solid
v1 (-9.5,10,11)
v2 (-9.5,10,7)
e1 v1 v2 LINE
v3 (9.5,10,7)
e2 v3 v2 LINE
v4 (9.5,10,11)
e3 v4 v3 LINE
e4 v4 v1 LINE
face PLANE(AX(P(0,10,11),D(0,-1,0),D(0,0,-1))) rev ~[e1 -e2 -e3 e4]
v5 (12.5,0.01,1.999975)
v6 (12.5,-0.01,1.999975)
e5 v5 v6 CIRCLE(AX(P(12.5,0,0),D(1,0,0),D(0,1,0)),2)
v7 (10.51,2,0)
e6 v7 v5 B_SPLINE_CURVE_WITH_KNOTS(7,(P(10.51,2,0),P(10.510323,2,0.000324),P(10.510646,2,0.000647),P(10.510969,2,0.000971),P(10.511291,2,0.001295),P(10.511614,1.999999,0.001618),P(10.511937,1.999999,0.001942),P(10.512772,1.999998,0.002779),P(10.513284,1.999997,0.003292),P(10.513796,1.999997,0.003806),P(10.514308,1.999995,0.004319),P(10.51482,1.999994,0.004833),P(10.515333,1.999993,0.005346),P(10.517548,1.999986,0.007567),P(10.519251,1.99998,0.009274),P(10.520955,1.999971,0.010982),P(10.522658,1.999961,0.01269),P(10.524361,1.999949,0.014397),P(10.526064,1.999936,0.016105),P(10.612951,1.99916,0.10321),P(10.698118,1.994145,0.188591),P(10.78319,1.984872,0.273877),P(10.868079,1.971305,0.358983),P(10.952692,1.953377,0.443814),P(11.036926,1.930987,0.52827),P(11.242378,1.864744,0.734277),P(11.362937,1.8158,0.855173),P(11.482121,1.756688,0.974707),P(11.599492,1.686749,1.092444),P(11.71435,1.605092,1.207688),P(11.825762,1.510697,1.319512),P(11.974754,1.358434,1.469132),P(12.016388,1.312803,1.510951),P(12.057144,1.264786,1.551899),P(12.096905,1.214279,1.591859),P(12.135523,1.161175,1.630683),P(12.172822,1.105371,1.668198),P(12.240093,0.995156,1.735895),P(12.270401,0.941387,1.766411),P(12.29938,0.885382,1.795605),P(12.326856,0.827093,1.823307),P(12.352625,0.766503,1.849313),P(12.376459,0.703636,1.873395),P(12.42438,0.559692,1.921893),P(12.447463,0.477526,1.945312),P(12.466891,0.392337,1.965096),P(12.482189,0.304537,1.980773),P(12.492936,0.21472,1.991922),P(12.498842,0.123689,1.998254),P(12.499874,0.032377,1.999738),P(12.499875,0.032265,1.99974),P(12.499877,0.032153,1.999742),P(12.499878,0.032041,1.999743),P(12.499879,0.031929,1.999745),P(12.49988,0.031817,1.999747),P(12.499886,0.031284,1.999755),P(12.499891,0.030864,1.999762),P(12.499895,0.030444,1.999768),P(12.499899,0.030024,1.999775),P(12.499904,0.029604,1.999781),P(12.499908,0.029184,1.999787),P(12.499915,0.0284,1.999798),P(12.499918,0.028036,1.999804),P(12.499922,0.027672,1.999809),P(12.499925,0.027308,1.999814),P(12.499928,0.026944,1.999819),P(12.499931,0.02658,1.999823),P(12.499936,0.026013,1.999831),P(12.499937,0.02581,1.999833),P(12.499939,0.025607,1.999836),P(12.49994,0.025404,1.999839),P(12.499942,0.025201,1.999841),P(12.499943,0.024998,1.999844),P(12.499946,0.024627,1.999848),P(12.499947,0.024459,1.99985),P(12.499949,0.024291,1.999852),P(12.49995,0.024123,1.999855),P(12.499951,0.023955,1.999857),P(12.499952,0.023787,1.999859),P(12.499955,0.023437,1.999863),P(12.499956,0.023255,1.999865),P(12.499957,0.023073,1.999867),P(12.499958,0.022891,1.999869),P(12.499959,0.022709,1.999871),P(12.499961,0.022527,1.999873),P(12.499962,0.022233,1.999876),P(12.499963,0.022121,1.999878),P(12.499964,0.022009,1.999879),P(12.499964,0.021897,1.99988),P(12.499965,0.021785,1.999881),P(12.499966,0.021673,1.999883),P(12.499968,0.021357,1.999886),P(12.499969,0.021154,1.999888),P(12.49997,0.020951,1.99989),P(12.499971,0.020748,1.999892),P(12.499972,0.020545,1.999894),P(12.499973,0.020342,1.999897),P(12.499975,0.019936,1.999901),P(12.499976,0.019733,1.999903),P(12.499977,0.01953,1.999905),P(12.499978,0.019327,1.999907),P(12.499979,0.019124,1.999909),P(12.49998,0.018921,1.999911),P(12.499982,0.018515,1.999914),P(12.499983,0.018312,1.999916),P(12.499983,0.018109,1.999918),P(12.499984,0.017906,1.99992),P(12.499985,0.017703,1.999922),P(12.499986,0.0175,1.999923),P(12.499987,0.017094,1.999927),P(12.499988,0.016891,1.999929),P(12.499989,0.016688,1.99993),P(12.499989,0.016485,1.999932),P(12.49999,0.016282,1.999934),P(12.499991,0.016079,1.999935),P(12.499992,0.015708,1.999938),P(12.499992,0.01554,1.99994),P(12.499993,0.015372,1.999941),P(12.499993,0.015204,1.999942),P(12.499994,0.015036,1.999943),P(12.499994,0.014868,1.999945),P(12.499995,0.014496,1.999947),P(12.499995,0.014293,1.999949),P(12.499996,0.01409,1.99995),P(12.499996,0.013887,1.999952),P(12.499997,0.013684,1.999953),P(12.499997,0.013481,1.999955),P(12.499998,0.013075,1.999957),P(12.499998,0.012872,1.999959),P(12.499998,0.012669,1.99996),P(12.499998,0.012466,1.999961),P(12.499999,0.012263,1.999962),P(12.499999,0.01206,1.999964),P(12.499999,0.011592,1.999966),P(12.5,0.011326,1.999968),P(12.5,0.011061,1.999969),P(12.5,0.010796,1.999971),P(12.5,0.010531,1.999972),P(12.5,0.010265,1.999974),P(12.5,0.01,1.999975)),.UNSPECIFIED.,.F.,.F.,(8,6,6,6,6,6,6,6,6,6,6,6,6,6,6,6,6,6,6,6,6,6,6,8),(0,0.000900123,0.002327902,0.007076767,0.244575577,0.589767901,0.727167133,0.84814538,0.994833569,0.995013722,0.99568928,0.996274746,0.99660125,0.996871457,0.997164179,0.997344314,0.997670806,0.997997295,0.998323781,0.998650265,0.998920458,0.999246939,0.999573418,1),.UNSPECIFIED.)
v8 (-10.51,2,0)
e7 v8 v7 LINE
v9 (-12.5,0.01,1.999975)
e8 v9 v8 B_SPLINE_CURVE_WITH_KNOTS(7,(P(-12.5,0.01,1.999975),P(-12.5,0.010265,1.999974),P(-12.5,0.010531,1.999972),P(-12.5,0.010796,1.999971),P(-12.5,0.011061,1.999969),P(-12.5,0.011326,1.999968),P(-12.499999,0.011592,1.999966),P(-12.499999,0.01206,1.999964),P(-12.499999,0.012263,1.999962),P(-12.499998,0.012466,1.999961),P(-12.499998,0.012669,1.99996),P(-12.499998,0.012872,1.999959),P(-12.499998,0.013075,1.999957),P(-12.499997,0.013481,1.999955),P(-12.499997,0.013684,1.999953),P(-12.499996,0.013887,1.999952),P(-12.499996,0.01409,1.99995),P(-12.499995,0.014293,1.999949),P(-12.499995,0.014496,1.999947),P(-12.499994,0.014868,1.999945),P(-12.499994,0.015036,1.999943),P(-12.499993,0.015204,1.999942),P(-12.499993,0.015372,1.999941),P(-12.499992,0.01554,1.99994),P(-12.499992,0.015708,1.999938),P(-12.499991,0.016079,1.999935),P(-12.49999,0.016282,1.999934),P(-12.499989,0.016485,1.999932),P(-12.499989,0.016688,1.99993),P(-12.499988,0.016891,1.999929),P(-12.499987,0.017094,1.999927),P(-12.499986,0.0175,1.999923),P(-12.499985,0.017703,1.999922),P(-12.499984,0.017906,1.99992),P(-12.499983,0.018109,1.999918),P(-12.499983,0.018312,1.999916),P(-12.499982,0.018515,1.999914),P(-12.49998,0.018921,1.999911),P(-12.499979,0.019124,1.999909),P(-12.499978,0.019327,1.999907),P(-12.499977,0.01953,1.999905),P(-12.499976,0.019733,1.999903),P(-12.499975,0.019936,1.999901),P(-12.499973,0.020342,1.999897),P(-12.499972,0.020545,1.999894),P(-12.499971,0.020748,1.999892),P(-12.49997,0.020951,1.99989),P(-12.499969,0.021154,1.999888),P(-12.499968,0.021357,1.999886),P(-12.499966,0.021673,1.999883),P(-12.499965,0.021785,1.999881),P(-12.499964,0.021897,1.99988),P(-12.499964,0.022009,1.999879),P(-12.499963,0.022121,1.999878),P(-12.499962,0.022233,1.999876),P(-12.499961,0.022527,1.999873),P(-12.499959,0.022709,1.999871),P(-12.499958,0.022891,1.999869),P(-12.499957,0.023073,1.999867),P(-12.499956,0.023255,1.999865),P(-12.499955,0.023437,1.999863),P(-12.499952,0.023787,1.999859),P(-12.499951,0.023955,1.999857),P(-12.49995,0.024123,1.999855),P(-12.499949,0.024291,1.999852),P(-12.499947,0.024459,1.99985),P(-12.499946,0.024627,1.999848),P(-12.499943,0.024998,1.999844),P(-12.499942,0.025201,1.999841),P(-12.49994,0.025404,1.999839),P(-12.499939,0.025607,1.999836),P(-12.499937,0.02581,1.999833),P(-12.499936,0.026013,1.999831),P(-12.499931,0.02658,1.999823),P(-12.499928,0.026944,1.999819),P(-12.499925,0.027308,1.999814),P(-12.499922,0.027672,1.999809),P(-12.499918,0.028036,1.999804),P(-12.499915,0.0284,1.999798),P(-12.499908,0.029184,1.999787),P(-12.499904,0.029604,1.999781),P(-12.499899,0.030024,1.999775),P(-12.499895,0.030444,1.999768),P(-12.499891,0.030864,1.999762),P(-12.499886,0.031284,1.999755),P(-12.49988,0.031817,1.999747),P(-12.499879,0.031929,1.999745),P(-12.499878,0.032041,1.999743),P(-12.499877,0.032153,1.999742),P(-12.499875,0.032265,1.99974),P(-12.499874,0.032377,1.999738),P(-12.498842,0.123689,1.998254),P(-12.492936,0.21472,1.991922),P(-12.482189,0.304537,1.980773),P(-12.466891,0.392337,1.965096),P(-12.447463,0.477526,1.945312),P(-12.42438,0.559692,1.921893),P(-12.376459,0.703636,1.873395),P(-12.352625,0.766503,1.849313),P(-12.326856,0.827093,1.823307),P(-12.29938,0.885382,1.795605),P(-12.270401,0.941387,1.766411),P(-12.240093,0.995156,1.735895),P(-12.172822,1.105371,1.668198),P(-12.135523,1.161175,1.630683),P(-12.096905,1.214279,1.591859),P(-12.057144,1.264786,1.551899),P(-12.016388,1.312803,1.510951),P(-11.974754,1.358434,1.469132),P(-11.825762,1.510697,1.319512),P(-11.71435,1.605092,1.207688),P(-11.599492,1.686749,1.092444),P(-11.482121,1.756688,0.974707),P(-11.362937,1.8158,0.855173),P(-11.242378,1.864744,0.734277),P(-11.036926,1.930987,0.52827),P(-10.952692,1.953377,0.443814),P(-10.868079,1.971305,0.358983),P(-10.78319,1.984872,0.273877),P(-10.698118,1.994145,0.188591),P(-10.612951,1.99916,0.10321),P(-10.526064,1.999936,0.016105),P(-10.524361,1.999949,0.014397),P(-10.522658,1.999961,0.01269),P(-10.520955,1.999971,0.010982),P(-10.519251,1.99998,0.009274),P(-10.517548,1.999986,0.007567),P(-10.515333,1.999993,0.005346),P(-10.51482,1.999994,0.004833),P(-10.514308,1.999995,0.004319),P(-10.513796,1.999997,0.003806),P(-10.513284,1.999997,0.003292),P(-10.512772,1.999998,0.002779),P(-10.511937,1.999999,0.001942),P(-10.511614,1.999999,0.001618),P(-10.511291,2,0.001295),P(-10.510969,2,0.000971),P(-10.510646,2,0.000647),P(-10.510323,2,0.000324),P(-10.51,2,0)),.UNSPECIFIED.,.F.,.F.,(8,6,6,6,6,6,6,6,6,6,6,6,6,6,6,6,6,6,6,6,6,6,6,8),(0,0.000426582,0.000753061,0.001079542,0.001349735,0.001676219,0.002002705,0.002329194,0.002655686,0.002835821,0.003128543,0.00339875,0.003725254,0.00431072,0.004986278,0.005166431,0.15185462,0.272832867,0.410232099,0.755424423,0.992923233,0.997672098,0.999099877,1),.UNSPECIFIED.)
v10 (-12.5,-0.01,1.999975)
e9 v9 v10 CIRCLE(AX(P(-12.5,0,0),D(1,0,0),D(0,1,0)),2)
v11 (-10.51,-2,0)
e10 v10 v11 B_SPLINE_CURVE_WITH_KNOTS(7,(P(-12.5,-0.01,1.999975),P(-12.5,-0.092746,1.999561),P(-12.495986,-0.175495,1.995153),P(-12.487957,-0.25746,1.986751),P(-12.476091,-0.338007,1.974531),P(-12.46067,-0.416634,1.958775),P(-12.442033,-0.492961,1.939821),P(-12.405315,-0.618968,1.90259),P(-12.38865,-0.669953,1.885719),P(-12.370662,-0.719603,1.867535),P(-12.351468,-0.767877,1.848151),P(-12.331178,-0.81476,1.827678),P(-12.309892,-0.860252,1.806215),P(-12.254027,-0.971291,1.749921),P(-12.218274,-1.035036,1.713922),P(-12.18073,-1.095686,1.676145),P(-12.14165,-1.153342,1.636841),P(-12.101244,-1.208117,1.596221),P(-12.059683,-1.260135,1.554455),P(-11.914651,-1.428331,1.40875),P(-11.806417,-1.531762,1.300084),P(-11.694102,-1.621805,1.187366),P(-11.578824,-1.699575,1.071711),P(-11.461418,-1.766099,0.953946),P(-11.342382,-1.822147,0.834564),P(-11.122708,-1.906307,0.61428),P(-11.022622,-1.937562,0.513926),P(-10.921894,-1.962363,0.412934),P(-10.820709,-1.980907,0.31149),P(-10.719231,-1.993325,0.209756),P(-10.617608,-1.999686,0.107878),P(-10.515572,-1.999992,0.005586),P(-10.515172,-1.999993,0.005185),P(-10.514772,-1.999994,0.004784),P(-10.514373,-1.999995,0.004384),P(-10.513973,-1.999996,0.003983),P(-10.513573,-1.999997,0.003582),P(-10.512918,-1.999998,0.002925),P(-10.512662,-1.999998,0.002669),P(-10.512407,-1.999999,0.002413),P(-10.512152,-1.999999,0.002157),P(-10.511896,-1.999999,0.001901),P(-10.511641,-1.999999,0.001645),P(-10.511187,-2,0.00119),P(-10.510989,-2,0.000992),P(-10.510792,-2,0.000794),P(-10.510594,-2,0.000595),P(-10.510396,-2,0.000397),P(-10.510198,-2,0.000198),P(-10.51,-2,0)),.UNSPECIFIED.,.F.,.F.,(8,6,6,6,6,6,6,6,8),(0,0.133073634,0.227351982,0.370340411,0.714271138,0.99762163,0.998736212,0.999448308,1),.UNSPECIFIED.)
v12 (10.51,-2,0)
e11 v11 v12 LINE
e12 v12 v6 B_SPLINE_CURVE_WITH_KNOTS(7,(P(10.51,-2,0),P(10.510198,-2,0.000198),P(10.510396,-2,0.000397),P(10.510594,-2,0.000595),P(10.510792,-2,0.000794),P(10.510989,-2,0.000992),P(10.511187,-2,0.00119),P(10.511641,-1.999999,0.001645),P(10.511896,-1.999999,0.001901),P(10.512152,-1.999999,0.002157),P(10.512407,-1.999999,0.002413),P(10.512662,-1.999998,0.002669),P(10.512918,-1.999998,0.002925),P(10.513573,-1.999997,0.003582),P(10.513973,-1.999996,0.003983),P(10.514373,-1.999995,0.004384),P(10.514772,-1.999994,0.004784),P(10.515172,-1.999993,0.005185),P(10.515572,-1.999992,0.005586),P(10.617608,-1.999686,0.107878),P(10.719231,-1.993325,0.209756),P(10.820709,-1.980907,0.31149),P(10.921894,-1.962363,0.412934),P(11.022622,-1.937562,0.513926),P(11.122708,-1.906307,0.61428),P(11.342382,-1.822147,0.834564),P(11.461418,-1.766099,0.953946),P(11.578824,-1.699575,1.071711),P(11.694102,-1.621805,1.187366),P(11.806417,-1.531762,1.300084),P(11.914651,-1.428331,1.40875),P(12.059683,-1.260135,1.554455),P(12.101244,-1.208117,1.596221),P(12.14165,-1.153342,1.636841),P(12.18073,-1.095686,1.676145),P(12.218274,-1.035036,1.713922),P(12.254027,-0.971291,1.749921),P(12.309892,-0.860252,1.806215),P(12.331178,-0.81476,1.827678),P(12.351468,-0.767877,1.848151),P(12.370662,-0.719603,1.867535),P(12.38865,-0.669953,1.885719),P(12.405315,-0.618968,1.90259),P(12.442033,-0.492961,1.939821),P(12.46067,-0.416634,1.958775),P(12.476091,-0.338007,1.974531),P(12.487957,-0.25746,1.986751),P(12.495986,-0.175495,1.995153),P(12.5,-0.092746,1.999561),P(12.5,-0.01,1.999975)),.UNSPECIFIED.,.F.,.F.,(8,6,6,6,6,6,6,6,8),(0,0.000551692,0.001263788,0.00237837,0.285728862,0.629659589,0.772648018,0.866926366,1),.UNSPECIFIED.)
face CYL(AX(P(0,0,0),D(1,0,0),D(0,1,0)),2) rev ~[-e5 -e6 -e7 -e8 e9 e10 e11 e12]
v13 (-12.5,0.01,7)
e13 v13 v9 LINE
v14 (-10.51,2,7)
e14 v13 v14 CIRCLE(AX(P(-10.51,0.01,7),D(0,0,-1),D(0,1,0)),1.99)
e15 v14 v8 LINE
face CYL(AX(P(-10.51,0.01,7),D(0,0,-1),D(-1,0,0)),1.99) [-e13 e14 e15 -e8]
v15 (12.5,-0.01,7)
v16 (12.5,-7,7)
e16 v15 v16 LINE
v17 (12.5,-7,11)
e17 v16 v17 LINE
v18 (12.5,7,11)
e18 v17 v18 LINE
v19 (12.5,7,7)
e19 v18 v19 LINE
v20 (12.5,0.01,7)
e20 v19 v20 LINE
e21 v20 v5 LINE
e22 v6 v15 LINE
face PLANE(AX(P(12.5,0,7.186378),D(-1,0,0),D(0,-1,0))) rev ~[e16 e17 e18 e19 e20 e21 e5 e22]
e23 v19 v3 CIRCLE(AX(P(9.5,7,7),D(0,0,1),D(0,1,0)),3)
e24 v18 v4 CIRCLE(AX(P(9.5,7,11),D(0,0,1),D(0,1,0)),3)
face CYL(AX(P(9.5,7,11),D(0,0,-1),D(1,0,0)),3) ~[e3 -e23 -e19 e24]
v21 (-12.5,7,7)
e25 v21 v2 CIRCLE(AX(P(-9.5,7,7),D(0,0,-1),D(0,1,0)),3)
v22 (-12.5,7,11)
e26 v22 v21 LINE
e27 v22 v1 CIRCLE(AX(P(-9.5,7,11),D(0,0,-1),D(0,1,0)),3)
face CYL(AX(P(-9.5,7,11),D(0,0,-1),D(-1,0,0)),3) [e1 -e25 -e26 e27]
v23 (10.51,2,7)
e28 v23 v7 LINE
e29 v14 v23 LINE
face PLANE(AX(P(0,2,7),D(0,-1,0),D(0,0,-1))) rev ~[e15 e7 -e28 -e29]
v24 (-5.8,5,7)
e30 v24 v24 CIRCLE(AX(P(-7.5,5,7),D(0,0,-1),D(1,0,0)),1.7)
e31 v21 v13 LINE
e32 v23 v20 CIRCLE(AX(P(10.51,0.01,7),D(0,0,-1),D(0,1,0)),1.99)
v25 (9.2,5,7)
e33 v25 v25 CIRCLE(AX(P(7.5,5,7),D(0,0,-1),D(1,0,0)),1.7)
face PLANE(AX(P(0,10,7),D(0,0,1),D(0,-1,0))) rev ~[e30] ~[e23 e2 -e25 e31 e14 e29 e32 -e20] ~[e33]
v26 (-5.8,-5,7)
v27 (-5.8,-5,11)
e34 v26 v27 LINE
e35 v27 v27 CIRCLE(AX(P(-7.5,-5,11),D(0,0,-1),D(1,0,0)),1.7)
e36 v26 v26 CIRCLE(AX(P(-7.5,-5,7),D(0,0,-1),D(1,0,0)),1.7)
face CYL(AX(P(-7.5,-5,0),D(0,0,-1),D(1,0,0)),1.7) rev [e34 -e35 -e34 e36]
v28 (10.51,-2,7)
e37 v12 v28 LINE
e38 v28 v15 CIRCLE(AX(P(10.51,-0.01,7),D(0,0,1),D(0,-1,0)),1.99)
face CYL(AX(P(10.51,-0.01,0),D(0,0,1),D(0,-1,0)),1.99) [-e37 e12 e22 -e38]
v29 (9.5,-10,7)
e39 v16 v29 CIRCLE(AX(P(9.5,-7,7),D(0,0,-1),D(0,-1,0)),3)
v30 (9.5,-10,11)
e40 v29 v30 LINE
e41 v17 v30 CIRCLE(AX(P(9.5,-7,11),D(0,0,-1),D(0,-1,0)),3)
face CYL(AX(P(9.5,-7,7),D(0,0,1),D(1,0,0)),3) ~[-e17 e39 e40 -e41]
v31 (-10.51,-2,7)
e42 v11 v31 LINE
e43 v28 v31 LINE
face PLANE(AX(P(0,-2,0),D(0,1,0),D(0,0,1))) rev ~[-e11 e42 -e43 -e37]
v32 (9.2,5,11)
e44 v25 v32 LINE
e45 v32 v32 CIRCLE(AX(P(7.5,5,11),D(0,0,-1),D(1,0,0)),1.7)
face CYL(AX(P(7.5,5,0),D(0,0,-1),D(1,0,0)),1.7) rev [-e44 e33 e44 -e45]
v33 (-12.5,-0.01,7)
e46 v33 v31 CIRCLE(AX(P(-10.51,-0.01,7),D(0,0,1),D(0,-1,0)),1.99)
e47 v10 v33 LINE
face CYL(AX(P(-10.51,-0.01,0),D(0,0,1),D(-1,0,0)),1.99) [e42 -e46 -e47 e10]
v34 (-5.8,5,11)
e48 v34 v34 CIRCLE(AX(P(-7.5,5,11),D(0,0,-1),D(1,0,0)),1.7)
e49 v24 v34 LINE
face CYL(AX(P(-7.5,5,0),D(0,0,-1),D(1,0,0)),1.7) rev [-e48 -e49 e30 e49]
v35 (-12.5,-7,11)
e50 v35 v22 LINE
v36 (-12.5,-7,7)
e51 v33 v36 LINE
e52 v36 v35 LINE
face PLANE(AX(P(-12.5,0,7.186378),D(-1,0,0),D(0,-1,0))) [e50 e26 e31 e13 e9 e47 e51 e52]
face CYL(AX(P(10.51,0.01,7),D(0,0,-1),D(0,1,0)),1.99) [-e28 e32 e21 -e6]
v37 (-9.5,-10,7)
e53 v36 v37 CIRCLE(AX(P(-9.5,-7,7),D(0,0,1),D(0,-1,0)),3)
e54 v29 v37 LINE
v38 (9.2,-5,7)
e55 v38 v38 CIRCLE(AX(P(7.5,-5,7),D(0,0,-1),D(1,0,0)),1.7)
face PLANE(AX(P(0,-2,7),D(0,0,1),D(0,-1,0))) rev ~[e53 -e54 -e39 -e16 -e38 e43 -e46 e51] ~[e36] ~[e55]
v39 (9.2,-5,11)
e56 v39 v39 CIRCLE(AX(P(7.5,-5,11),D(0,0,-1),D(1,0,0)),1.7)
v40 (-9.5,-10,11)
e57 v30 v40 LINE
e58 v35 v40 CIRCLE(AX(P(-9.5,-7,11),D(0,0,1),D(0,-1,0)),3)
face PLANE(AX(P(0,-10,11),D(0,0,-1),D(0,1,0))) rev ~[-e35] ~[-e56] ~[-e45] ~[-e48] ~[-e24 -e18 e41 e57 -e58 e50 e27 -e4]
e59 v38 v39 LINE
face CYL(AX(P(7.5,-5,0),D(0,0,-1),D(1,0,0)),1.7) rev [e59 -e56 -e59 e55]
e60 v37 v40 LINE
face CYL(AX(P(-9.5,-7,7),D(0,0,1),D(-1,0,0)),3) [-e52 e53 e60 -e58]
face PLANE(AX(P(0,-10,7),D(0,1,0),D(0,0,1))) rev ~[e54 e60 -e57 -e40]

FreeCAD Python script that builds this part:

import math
import FreeCAD as App
import Part
import Sketcher


def edges_at(feature, points):
    """Names of the edges that pass closest to the given points."""
    edges = feature.Shape.Edges
    near = lambda p: min(range(len(edges)), key=lambda i: edges[i].distToShape(Part.Vertex(*p))[0])
    return sorted({f"Edge{near(p) + 1}" for p in points})

doc = App.newDocument("Part")
body = doc.addObject("PartDesign::Body", "Body")

# Sketch on YZ plane
sketch1 = body.newObject("Sketcher::SketchObject", "Sketch")
sketch1.AttachmentSupport = (doc.getObject("YZ_Plane"), [""])
sketch1.MapMode = "FlatFace"
sketch1.addGeometry([
    Part.LineSegment(App.Vector(-2, 7, 0), App.Vector(-2, 0, 0)),  # 0
    Part.ArcOfCircle(Part.Circle(App.Vector(0, 0, 0), App.Vector(0, 0, 1), 2), math.radians(0), math.radians(180)),  # 1
    Part.LineSegment(App.Vector(2, 0, 0), App.Vector(2, 7, 0)),  # 2
    Part.LineSegment(App.Vector(2, 7, 0), App.Vector(10, 7, 0)),  # 3
    Part.LineSegment(App.Vector(10, 7, 0), App.Vector(10, 11, 0)),  # 4
    Part.LineSegment(App.Vector(10, 11, 0), App.Vector(-10, 11, 0)),  # 5
    Part.LineSegment(App.Vector(-10, 11, 0), App.Vector(-10, 7, 0)),  # 6
    Part.LineSegment(App.Vector(-10, 7, 0), App.Vector(-2, 7, 0)),  # 7
], False)
sketch1.addConstraint([
    Sketcher.Constraint("Tangent", 0, 2, 1, 2),
    Sketcher.Constraint("Tangent", 1, 1, 2, 1),
    Sketcher.Constraint("Coincident", 2, 2, 3, 1),
    Sketcher.Constraint("Coincident", 3, 2, 4, 1),
    Sketcher.Constraint("Coincident", 4, 2, 5, 1),
    Sketcher.Constraint("Coincident", 5, 2, 6, 1),
    Sketcher.Constraint("Coincident", 6, 2, 7, 1),
    Sketcher.Constraint("Coincident", 7, 2, 0, 1),
    Sketcher.Constraint("Vertical", 0),
    Sketcher.Constraint("Vertical", 2),
    Sketcher.Constraint("Horizontal", 3),
    Sketcher.Constraint("Vertical", 4),
    Sketcher.Constraint("Horizontal", 5),
    Sketcher.Constraint("Vertical", 6),
    Sketcher.Constraint("Horizontal", 7),
    Sketcher.Constraint("Coincident", 1, 3, -1, 1),
    Sketcher.Constraint("Symmetric", 3, 2, 6, 2, -2),
    Sketcher.Constraint("Radius", 1, 2.0),
    Sketcher.Constraint("DistanceX", 3, 1, 3, 2, 8.0),
    Sketcher.Constraint("DistanceY", 0, 2, 0, 1, 7.0),
    Sketcher.Constraint("DistanceY", 4, 1, 4, 2, 4.0),
])
pad1 = body.newObject("PartDesign::Pad", "Pad")
pad1.Profile = sketch1
pad1.Length = 25
pad1.Midplane = True

# Sketch on XY plane
sketch2 = body.newObject("Sketcher::SketchObject", "Sketch001")
sketch2.AttachmentSupport = (doc.getObject("XY_Plane"), [""])
sketch2.MapMode = "FlatFace"
sketch2.addGeometry([
    Part.Circle(App.Vector(-7.5, 5, 0), App.Vector(0, 0, 1), 1.7),
    Part.Circle(App.Vector(-7.5, -5, 0), App.Vector(0, 0, 1), 1.7),
    Part.Circle(App.Vector(7.5, 5, 0), App.Vector(0, 0, 1), 1.7),
    Part.Circle(App.Vector(7.5, -5, 0), App.Vector(0, 0, 1), 1.7),
], False)
sketch2.addConstraint([
    Sketcher.Constraint("Equal", 0, 1),
    Sketcher.Constraint("Equal", 1, 2),
    Sketcher.Constraint("Equal", 2, 3),
    Sketcher.Constraint("Symmetric", 1, 3, 2, 3, -1, 1),
    Sketcher.Constraint("Symmetric", 0, 3, 3, 3, -1, 1),
    Sketcher.Constraint("Symmetric", 0, 3, 2, 3, -2),
    Sketcher.Constraint("Diameter", 0, 3.4),
    Sketcher.Constraint("DistanceY", -1, 1, 0, 3, 5.0),
    Sketcher.Constraint("DistanceX", 0, 3, 2, 3, 15.0),
])
pocket1 = body.newObject("PartDesign::Pocket", "Pocket")
pocket1.Profile = sketch2
pocket1.Type = "ThroughAll"
pocket1.Midplane = True
doc.recompute()

fillet = body.newObject("PartDesign::Fillet", "Fillet")
fillet.Base = (pocket1, edges_at(pocket1, [
    (12.5, 10, 9),
    (12.5, -10, 9),
    (-12.5, -10, 9),
    (-12.5, 10, 9),
]))
fillet.Radius = 3
doc.recompute()

fillet2 = body.newObject("PartDesign::Fillet", "Fillet001")
fillet2.Base = (fillet, edges_at(fillet, [
    (-12.5, -2, 3.5),
    (-12.5, 2, 3.5),
    (12.5, -2, 3.5),
    (12.5, 2, 3.5),
]))
fillet2.Radius = 1.99

doc.recompute()
